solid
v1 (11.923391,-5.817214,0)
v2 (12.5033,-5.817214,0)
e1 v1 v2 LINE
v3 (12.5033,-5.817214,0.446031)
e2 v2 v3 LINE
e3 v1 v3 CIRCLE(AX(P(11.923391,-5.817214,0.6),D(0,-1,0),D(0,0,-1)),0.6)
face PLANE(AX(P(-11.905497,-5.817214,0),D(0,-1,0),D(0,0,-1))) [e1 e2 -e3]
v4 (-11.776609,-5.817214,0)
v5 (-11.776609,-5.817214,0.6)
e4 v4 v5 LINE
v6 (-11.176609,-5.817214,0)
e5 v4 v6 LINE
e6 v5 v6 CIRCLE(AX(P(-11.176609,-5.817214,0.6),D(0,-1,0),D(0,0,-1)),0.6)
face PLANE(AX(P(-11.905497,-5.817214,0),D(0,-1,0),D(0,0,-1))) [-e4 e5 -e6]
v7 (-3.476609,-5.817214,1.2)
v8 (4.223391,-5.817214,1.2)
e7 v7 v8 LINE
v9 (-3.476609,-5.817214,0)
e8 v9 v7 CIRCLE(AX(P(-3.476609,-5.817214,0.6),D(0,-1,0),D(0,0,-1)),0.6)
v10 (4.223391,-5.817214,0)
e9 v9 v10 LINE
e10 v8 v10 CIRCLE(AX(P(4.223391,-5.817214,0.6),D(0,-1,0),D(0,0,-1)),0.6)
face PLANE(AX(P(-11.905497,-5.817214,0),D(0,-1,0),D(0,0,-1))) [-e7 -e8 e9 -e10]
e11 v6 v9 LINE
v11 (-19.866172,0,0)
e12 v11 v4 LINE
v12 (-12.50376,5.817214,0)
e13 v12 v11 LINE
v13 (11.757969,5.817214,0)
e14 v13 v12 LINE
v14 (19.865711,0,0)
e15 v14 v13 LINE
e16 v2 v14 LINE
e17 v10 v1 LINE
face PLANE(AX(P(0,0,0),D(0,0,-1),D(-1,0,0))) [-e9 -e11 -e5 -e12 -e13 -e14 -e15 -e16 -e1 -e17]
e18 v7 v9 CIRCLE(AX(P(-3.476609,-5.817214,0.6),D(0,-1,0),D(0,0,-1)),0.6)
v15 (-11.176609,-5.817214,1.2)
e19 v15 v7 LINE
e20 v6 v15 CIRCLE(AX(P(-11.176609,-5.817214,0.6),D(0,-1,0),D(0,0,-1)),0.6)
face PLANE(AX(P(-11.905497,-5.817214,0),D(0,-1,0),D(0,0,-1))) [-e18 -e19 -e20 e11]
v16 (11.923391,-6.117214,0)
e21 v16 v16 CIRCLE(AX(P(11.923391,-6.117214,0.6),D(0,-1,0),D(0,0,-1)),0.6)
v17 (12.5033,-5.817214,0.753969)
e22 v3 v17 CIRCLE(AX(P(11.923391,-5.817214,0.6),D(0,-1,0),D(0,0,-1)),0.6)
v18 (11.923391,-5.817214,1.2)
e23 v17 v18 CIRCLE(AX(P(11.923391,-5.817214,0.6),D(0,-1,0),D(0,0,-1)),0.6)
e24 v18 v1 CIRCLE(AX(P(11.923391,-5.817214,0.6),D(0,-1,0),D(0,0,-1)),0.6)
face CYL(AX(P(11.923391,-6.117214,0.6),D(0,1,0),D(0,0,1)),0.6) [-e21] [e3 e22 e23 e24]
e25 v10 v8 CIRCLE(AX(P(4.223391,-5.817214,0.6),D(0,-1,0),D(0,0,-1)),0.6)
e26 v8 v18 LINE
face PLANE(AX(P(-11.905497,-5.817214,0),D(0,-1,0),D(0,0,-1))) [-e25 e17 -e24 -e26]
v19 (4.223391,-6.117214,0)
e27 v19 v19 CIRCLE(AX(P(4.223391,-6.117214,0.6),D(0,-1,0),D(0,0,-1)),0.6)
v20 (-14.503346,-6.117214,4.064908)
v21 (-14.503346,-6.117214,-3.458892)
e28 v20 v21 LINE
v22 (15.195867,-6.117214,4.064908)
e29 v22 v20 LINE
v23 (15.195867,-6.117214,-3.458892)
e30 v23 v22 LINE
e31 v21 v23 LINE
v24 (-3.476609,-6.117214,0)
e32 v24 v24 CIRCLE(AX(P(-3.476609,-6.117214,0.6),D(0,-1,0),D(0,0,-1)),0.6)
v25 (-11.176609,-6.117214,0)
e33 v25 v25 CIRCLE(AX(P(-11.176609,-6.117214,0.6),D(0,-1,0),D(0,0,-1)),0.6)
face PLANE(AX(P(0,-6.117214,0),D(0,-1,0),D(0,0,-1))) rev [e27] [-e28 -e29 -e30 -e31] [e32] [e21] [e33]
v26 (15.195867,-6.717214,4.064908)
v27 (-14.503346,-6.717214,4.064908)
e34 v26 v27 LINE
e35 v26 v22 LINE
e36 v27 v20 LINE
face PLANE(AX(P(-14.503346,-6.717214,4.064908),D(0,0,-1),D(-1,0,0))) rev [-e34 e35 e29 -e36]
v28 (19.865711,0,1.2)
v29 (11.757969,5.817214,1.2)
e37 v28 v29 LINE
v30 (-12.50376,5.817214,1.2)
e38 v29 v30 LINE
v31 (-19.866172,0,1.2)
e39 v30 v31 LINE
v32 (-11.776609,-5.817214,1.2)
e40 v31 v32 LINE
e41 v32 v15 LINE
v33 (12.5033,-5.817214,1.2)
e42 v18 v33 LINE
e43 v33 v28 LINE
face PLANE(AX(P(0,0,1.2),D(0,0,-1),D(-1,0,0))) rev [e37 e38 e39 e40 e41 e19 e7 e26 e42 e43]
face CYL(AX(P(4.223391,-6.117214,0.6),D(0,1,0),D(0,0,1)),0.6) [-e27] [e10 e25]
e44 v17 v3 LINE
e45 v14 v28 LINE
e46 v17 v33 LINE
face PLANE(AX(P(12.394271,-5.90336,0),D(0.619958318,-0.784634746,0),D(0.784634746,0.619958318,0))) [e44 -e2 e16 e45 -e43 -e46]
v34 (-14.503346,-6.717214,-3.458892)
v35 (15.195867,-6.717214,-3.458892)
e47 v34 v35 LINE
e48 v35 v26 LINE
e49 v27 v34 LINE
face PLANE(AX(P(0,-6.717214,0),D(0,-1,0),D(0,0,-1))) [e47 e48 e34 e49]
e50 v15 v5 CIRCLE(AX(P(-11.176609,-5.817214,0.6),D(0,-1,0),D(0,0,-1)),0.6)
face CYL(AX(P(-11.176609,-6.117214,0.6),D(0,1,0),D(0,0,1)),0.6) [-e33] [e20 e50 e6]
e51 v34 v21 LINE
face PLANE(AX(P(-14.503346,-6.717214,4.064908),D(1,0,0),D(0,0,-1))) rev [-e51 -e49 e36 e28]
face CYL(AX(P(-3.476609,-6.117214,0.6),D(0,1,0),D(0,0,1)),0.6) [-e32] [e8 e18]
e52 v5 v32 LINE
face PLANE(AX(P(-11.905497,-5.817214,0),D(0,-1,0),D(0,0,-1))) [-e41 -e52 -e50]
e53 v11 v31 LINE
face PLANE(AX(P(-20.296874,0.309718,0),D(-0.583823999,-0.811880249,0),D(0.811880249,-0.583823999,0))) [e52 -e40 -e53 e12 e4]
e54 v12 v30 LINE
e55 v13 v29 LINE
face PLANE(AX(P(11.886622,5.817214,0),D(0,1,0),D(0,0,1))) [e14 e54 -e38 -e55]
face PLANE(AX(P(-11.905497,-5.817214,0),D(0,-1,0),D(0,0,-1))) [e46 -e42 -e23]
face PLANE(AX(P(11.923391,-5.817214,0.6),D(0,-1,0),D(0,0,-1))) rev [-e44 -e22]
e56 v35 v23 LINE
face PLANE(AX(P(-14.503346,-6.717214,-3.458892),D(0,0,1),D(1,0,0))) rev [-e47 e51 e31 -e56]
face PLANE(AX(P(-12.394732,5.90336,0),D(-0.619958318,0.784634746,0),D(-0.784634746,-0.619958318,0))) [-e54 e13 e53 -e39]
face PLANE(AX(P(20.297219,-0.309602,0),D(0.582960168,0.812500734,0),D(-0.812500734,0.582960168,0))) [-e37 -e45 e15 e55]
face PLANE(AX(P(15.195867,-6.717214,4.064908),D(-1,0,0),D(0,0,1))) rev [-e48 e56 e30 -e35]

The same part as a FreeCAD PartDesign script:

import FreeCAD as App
import Part
import Sketcher

V = App.Vector
Q = App.Units.Quantity

doc = App.newDocument("Part")
body = doc.addObject("PartDesign::Body", "Body")

# Sketch on XY plane
sketch1 = body.newObject("Sketcher::SketchObject", "Sketch")
sketch1.AttachmentSupport = (doc.getObject("XY_Plane"), [""])
sketch1.MapMode = "FlatFace"
sketch1.addGeometry(Part.LineSegment(V(-12.7, 6.2, 0), V(-20.5, 0, 0)), False)
sketch1.addGeometry(Part.LineSegment(V(-20.5, 0, 0), V(-11.9, -6.2, 0)), False)
sketch1.addGeometry(Part.LineSegment(V(-11.9, -6.2, 0), V(12.6, -6.2, 0)), False)
sketch1.addGeometry(Part.LineSegment(V(12.6, -6.2, 0), V(20.5, 0, 0)), False)
sketch1.addGeometry(Part.LineSegment(V(20.5, 0, 0), V(11.9, 6.2, 0)), False)
sketch1.addGeometry(Part.LineSegment(V(11.9, 6.2, 0), V(-13.8, 6.2, 0)), False)
sketch1.addGeometry(Part.LineSegment(V(-13.8, 6.2, 0), V(-12.7, 6.2, 0)), False)
sketch1.addConstraint(Sketcher.Constraint("Coincident", 0, 2, 1, 1))
sketch1.addConstraint(Sketcher.Constraint("Coincident", 1, 2, 2, 1))
sketch1.addConstraint(Sketcher.Constraint("Coincident", 2, 2, 3, 1))
sketch1.addConstraint(Sketcher.Constraint("Coincident", 3, 2, 4, 1))
sketch1.addConstraint(Sketcher.Constraint("Coincident", 4, 2, 5, 1))
sketch1.addConstraint(Sketcher.Constraint("Coincident", 5, 2, 6, 1))
sketch1.addConstraint(Sketcher.Constraint("Coincident", 6, 2, 0, 1))
sketch1.addConstraint(Sketcher.Constraint("Horizontal", 2))
sketch1.addConstraint(Sketcher.Constraint("Horizontal", 5))
sketch1.addConstraint(Sketcher.Constraint("Parallel", 0, 3))
sketch1.addConstraint(Sketcher.Constraint("DistanceX", 2, 1, 2, 2, Q("24.547751 mm")))
sketch1.addConstraint(Sketcher.Constraint("DistanceX", 5, 2, 5, 1, Q("25.647812 mm")))
sketch1.addConstraint(Sketcher.Constraint("DistanceX", 1, 2, 3, 2, Q("32.4359 mm")))
sketch1.addConstraint(Sketcher.Constraint("Distance", 4, Q("10.63849 mm")))
sketch1.addConstraint(Sketcher.Constraint("DistanceX", 5, 2, -1, 1, Q("13.761189 mm")))
sketch1.addConstraint(Sketcher.Constraint("DistanceY", -1, 1, 6, 2, Q("6.182259 mm")))
sketch1.addConstraint(Sketcher.Constraint("DistanceY", 1, 2, 0, 2, Q("6.20218 mm")))
sketch1.addConstraint(Sketcher.Constraint("DistanceY", 2, 2, 3, 2, Q("6.232612 mm")))
sketch1.addConstraint(Sketcher.Constraint("DistanceX", 4, 2, 3, 2, Q("8.643781 mm")))
sketch1.addConstraint(Sketcher.Constraint("DistanceX", 0, 2, 6, 2, Q("7.843449 mm")))
sketch1.addConstraint(Sketcher.Constraint("DistanceX", 6, 2, 1, 2, Q("0.781458 mm")))
pad1 = body.newObject("PartDesign::Pad", "Pad")
pad1.Profile = sketch1
pad1.Length = 1.2

# Sketch on XY plane
sketch2 = body.newObject("Sketcher::SketchObject", "Sketch001")
sketch2.AttachmentSupport = (doc.getObject("XY_Plane"), [""])
sketch2.MapMode = "FlatFace"
sketch2.AttachmentOffset = App.Placement(V(0, 0, 1.2), App.Rotation())
sketch2.addGeometry(Part.LineSegment(V(-13.76, 6.22, 0), V(-12.69, 6.18, 0)), False)
sketch2.addGeometry(Part.LineSegment(V(-12.69, 6.18, 0), V(-12.64, 6.22, 0)), False)
sketch2.addGeometry(Part.LineSegment(V(-12.64, 6.22, 0), V(-13.76, 6.22, 0)), False)
sketch2.addConstraint(Sketcher.Constraint("Coincident", 0, 2, 1, 1))
sketch2.addConstraint(Sketcher.Constraint("Coincident", 1, 2, 2, 1))
sketch2.addConstraint(Sketcher.Constraint("Coincident", 2, 2, 0, 1))
sketch2.addConstraint(Sketcher.Constraint("Horizontal", 2))
sketch2.addConstraint(Sketcher.Constraint("DistanceX", 2, 2, 2, 1, Q("1.118474 mm")))
sketch2.addConstraint(Sketcher.Constraint("DistanceY", -1, 1, 0, 2, Q("6.182259 mm")))
sketch2.addConstraint(Sketcher.Constraint("DistanceX", 2, 2, -1, 1, Q("13.761189 mm")))
sketch2.addConstraint(Sketcher.Constraint("DistanceX", 0, 2, 1, 2, Q("0.04424 mm")))
sketch2.addConstraint(Sketcher.Constraint("Distance", 0, Q("1.074803 mm")))
pocket1 = body.newObject("PartDesign::Pocket", "Pocket")
pocket1.Profile = sketch2
pocket1.Length = 1.2

# Sketch on XY plane
sketch3 = body.newObject("Sketcher::SketchObject", "Sketch002")
sketch3.AttachmentSupport = (doc.getObject("XY_Plane"), [""])
sketch3.MapMode = "FlatFace"
sketch3.AttachmentOffset = App.Placement(V(0, 0, 1.2), App.Rotation())
sketch3.addGeometry(Part.LineSegment(V(12, 6, 0), V(-13, 6, 0)), False)
sketch3.addGeometry(Part.LineSegment(V(-13, 6, 0), V(-21, 0, 0)), False)
sketch3.addGeometry(Part.LineSegment(V(-21, 0, 0), V(-12, -6, 0)), False)
sketch3.addGeometry(Part.LineSegment(V(-12, -6, 0), V(13, -6, 0)), False)
sketch3.addGeometry(Part.LineSegment(V(13, -6, 0), V(21, 0, 0)), False)
sketch3.addGeometry(Part.LineSegment(V(21, 0, 0), V(12, 6, 0)), False)
sketch3.addGeometry(Part.LineSegment(V(-13, 6, 0), V(12, 6, 0)), False)
sketch3.addGeometry(Part.LineSegment(V(12, 6, 0), V(20, 0, 0)), False)
sketch3.addGeometry(Part.LineSegment(V(20, 0, 0), V(13, -6, 0)), False)
sketch3.addGeometry(Part.LineSegment(V(13, -6, 0), V(-12, -6, 0)), False)
sketch3.addGeometry(Part.LineSegment(V(-12, -6, 0), V(-20, 0, 0)), False)
sketch3.addGeometry(Part.LineSegment(V(-20, 0, 0), V(-13, 6, 0)), False)
sketch3.addConstraint(Sketcher.Constraint("Coincident", 0, 2, 1, 1))
sketch3.addConstraint(Sketcher.Constraint("Coincident", 1, 2, 2, 1))
sketch3.addConstraint(Sketcher.Constraint("Coincident", 2, 2, 3, 1))
sketch3.addConstraint(Sketcher.Constraint("Coincident", 3, 2, 4, 1))
sketch3.addConstraint(Sketcher.Constraint("Coincident", 4, 2, 5, 1))
sketch3.addConstraint(Sketcher.Constraint("Coincident", 5, 2, 0, 1))
sketch3.addConstraint(Sketcher.Constraint("Coincident", 6, 2, 7, 1))
sketch3.addConstraint(Sketcher.Constraint("Coincident", 7, 2, 8, 1))
sketch3.addConstraint(Sketcher.Constraint("Coincident", 8, 2, 9, 1))
sketch3.addConstraint(Sketcher.Constraint("Coincident", 9, 2, 10, 1))
sketch3.addConstraint(Sketcher.Constraint("Coincident", 10, 2, 11, 1))
sketch3.addConstraint(Sketcher.Constraint("Coincident", 11, 2, 6, 1))
sketch3.addConstraint(Sketcher.Constraint("Horizontal", 0))
sketch3.addConstraint(Sketcher.Constraint("Horizontal", 3))
sketch3.addConstraint(Sketcher.Constraint("Horizontal", 6))
sketch3.addConstraint(Sketcher.Constraint("Horizontal", 9))
sketch3.addConstraint(Sketcher.Constraint("PointOnObject", 7, 2, -1))
sketch3.addConstraint(Sketcher.Constraint("PointOnObject", 10, 2, -1))
sketch3.addConstraint(Sketcher.Constraint("Parallel", 1, 4))
sketch3.addConstraint(Sketcher.Constraint("Parallel", 5, 7))
sketch3.addConstraint(Sketcher.Constraint("Parallel", 4, 8))
sketch3.addConstraint(Sketcher.Constraint("Parallel", 2, 10))
sketch3.addConstraint(Sketcher.Constraint("Parallel", 8, 11))
sketch3.addConstraint(Sketcher.Constraint("Equal", 8, 11))
sketch3.addConstraint(Sketcher.Constraint("DistanceY", 6, 2, 5, 2, Q("0.4 mm")))
sketch3.addConstraint(Sketcher.Constraint("DistanceY", 3, 2, 8, 2, Q("0.4 mm")))
sketch3.addConstraint(Sketcher.Constraint("DistanceX", 3, 1, 3, 2, Q("24.547751 mm")))
sketch3.addConstraint(Sketcher.Constraint("DistanceX", 6, 1, 6, 2, Q("24.261729 mm")))
sketch3.addConstraint(Sketcher.Constraint("DistanceX", 9, 2, 9, 1, Q("24.279908 mm")))
sketch3.addConstraint(Sketcher.Constraint("DistanceX", -1, 1, 8, 2, Q("12.5033 mm")))
sketch3.addConstraint(Sketcher.Constraint("DistanceX", 2, 2, 4, 2, Q("32.4359 mm")))
sketch3.addConstraint(Sketcher.Constraint("Distance", 1, Q("10.052688 mm")))
sketch3.addConstraint(Sketcher.Constraint("Distance", 5, Q("10.63849 mm")))
sketch3.addConstraint(Sketcher.Constraint("Distance", 7, Q("9.97875 mm")))
sketch3.addConstraint(Sketcher.Constraint("DistanceX", 0, 2, 0, 1, Q("24.529337 mm")))
sketch3.addConstraint(Sketcher.Constraint("DistanceX", 5, 2, 7, 2, Q("7.979089 mm")))
pocket2 = body.newObject("PartDesign::Pocket", "Pocket001")
pocket2.Profile = sketch3
pocket2.Length = 1.2

# Sketch on XZ plane
sketch4 = body.newObject("Sketcher::SketchObject", "Sketch003")
sketch4.AttachmentSupport = (doc.getObject("XZ_Plane"), [""])
sketch4.MapMode = "FlatFace"
sketch4.AttachmentOffset = App.Placement(V(0, 0, 5.817214), App.Rotation())
sketch4.addGeometry(Part.Circle(V(-11.2, 0.6, 0), V(0, 0, 1), 0.6), False)
sketch4.addGeometry(Part.Circle(V(-3.5, 0.6, 0), V(0, 0, 1), 0.6), False)
sketch4.addGeometry(Part.Circle(V(4.2, 0.6, 0), V(0, 0, 1), 0.6), False)
sketch4.addGeometry(Part.Circle(V(11.9, 0.6, 0), V(0, 0, 1), 0.6), False)
sketch4.addConstraint(Sketcher.Constraint("Equal", 0, 1))
sketch4.addConstraint(Sketcher.Constraint("Equal", 1, 2))
sketch4.addConstraint(Sketcher.Constraint("Equal", 2, 3))
sketch4.addConstraint(Sketcher.Constraint("Horizontal", 0, 3, 1, 3))
sketch4.addConstraint(Sketcher.Constraint("Horizontal", 1, 3, 2, 3))
sketch4.addConstraint(Sketcher.Constraint("Horizontal", 2, 3, 3, 3))
sketch4.addConstraint(Sketcher.Constraint("Diameter", 0, Q("1.2 mm")))
sketch4.addConstraint(Sketcher.Constraint("DistanceY", -1, 1, 0, 3, Q("0.6 mm")))
sketch4.addConstraint(Sketcher.Constraint("DistanceX", 0, 3, 1, 3, Q("7.7 mm")))
sketch4.addConstraint(Sketcher.Constraint("DistanceX", 1, 3, 2, 3, Q("7.7 mm")))
sketch4.addConstraint(Sketcher.Constraint("DistanceX", 2, 3, 3, 3, Q("7.7 mm")))
sketch4.addConstraint(Sketcher.Constraint("DistanceX", 0, 3, -1, 1, Q("11.176609 mm")))
pad2 = body.newObject("PartDesign::Pad", "Pad001")
pad2.Profile = sketch4
pad2.Length = 0.3

# Sketch on XZ plane
sketch5 = body.newObject("Sketcher::SketchObject", "Sketch004")
sketch5.AttachmentSupport = (doc.getObject("XZ_Plane"), [""])
sketch5.MapMode = "FlatFace"
sketch5.AttachmentOffset = App.Placement(V(0, 0, 6.117214), App.Rotation())
sketch5.addGeometry(Part.LineSegment(V(-15, 4, 0), V(-15, -3, 0)), False)
sketch5.addGeometry(Part.LineSegment(V(-15, -3, 0), V(15, -3, 0)), False)
sketch5.addGeometry(Part.LineSegment(V(15, -3, 0), V(15, 4, 0)), False)
sketch5.addGeometry(Part.LineSegment(V(15, 4, 0), V(-15, 4, 0)), False)
sketch5.addConstraint(Sketcher.Constraint("Coincident", 0, 2, 1, 1))
sketch5.addConstraint(Sketcher.Constraint("Coincident", 1, 2, 2, 1))
sketch5.addConstraint(Sketcher.Constraint("Coincident", 2, 2, 3, 1))
sketch5.addConstraint(Sketcher.Constraint("Coincident", 3, 2, 0, 1))
sketch5.addConstraint(Sketcher.Constraint("Vertical", 0))
sketch5.addConstraint(Sketcher.Constraint("Horizontal", 1))
sketch5.addConstraint(Sketcher.Constraint("Vertical", 2))
sketch5.addConstraint(Sketcher.Constraint("Horizontal", 3))
sketch5.addConstraint(Sketcher.Constraint("DistanceY", 0, 2, 0, 1, Q("7.523801 mm")))
sketch5.addConstraint(Sketcher.Constraint("DistanceX", 1, 1, 1, 2, Q("29.699213 mm")))
sketch5.addConstraint(Sketcher.Constraint("DistanceY", -1, 1, 2, 2, Q("4.064908 mm")))
sketch5.addConstraint(Sketcher.Constraint("DistanceX", 0, 2, -1, 1, Q("14.503346 mm")))
pad3 = body.newObject("PartDesign::Pad", "Pad002")
pad3.Profile = sketch5
pad3.Length = 0.6

doc.recompute()
